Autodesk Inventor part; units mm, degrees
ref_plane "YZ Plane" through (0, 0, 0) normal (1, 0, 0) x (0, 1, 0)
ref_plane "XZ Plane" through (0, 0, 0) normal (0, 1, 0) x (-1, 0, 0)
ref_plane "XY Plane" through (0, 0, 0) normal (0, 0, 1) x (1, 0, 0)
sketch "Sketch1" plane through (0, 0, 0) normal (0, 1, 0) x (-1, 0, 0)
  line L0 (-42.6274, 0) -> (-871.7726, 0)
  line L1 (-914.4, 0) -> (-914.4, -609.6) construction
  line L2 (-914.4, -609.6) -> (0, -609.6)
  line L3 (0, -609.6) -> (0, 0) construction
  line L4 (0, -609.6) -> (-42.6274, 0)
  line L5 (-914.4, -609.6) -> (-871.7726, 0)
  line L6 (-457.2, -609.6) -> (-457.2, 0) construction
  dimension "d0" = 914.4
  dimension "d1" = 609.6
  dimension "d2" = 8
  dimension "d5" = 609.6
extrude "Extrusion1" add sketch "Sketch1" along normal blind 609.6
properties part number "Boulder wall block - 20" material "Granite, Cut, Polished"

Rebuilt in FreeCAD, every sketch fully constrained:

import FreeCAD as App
import Part
import Sketcher
Q = App.Units.Quantity

doc = App.newDocument("Part")
params = doc.addObject("Spreadsheet::Sheet", "Params")
for row, (alias, value) in enumerate([
    ("sketch1_width", "36 in"),
    ("pad1_length", "24 in"),
], start=1):
    params.set(f"A{row}", alias)
    params.set(f"B{row}", "=" + value)
    params.setAlias(f"B{row}", alias)

body = doc.addObject("PartDesign::Body", "Body")

# Sketch on XZ plane
sketch1 = body.newObject("Sketcher::SketchObject", "Sketch")
sketch1.AttachmentSupport = (doc.getObject("XZ_Plane"), [""])
sketch1.MapMode = "FlatFace"
sketch1.addGeometry([
    Part.LineSegment(App.Vector(0, -610, 0), App.Vector(43, 0, 0)),
    Part.LineSegment(App.Vector(43, 0, 0), App.Vector(872, 0, 0)),
    Part.LineSegment(App.Vector(872, 0, 0), App.Vector(914, -610, 0)),
    Part.LineSegment(App.Vector(914, -610, 0), App.Vector(0, -610, 0)),
], False)
sketch1.addConstraint([
    Sketcher.Constraint("Coincident", 0, 2, 1, 1),
    Sketcher.Constraint("Coincident", 1, 2, 2, 1),
    Sketcher.Constraint("Coincident", 2, 2, 3, 1),
    Sketcher.Constraint("Coincident", 3, 2, 0, 1),
    Sketcher.Constraint("Horizontal", 1),
    Sketcher.Constraint("Horizontal", 3),
    Sketcher.Constraint("PointOnObject", 0, 2, -1),
    Sketcher.Constraint("PointOnObject", 3, 2, -2),
    Sketcher.Constraint("Equal", 0, 2),
    Sketcher.Constraint("DistanceX", 3, 2, 3, 1, Q("36 in")),
    Sketcher.Constraint("DistanceY", 2, 2, -1, 1, Q("24 in")),
    Sketcher.Constraint("Angle", 0, Q("86 deg")),
])
sketch1.setExpression("Constraints[9]", "Params.sketch1_width")
pad1 = body.newObject("PartDesign::Pad", "Pad")
pad1.Profile = sketch1
pad1.setExpression("Length", "Params.pad1_length")
pad1.Reversed = True

doc.recompute()
